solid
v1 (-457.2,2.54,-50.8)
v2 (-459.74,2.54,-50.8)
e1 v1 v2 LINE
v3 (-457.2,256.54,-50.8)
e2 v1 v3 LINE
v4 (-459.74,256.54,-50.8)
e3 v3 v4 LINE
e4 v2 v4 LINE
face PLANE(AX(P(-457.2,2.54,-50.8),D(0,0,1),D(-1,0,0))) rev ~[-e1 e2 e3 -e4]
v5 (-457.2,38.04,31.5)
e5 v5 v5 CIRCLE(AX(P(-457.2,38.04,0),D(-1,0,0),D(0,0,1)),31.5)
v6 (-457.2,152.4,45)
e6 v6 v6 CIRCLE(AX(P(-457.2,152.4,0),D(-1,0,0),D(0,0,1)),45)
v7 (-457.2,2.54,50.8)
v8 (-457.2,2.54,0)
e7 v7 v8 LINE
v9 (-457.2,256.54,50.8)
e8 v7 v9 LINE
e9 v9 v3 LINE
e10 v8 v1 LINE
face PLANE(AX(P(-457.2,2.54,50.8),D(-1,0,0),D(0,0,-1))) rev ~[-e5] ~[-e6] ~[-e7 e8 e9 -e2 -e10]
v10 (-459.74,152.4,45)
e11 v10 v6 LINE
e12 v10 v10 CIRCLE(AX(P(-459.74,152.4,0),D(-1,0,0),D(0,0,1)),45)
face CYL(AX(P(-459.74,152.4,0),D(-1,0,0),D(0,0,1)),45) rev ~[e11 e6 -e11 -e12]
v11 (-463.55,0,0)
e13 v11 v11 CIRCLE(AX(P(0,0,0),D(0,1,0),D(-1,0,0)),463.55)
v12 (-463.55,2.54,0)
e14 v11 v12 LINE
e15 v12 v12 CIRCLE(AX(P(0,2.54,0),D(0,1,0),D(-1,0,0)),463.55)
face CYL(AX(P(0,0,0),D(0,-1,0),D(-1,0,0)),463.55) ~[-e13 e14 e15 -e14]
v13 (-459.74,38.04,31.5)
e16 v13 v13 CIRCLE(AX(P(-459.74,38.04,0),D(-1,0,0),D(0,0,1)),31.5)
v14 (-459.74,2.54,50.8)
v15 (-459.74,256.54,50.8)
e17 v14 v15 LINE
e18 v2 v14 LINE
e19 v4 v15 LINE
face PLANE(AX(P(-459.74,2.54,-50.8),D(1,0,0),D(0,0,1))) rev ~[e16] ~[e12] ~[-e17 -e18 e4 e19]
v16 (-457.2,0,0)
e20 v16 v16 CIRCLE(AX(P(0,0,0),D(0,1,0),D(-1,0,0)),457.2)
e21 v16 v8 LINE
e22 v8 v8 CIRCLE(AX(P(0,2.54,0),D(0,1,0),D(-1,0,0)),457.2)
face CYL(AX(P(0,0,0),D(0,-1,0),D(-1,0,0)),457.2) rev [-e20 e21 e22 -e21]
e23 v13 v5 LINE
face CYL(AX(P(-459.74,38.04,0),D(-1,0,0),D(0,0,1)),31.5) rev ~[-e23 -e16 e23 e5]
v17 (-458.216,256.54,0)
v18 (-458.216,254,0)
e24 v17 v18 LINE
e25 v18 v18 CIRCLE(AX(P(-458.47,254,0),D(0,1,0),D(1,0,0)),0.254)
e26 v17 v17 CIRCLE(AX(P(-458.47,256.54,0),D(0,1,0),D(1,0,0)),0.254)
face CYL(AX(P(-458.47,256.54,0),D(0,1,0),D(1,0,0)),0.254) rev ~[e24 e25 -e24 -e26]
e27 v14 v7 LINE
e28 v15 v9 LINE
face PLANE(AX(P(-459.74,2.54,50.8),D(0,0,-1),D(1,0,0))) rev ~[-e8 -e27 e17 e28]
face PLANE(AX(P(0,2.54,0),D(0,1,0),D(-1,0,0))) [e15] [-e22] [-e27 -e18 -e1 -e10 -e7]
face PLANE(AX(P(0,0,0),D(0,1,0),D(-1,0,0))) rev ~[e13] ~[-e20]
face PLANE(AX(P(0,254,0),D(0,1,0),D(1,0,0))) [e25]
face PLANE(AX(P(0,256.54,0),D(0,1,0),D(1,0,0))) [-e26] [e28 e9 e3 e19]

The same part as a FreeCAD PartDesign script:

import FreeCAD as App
import Part
import Sketcher
from FreeCAD import Vector
Q = App.Units.Quantity


def add_polygon(sketch, points):
    """Adds a closed chain of lines whose ends are joined by coincident constraints."""
    first, n = sketch.GeometryCount, len(points)
    for a, b in zip(points, points[1:] + points[:1]):
        sketch.addGeometry(Part.LineSegment(App.Vector(*a, 0), App.Vector(*b, 0)), False)
    for i in range(n):
        sketch.addConstraint(Sketcher.Constraint("Coincident", first + i, 2, first + (i + 1) % n, 1))

doc = App.newDocument("Part")
body = doc.addObject("PartDesign::Body", "Body")

# Sketch on XZ plane
sketch1 = body.newObject("Sketcher::SketchObject", "Sketch")
sketch1.AttachmentSupport = (doc.getObject("XZ_Plane"), [""])
sketch1.MapMode = "FlatFace"
sketch1.addGeometry([
    Part.Circle(Vector(0, 0, 0), Vector(0, 0, 1), 463.55),
    Part.Circle(Vector(0, 0, 0), Vector(0, 0, 1), 457.2),
], False)
sketch1.addConstraint([
    Sketcher.Constraint("Coincident", 0, 3, -1, 1),
    Sketcher.Constraint("Coincident", 1, 3, -1, 1),
    Sketcher.Constraint("Diameter", 1, Q("36 in")),
    Sketcher.Constraint("Diameter", 0, Q("36.5 in")),
])
pad1 = body.newObject("PartDesign::Pad", "Pad")
pad1.Profile = sketch1
pad1.Length = Q("0.1 in")
pad1.Reversed = True

# Sketch on XZ plane
sketch2 = body.newObject("Sketcher::SketchObject", "Sketch001")
sketch2.AttachmentSupport = (doc.getObject("XZ_Plane"), [""])
sketch2.MapMode = "FlatFace"
sketch2.AttachmentOffset = App.Placement(Vector(0, 0, -0.1 * 25.4), App.Rotation())
add_polygon(sketch2, [(-459.74, -50.8), (-459.74, 50.8), (-457.2, 50.8), (-457.2, -50.8)])  # lines 0-3
sketch2.addConstraint([
    Sketcher.Constraint("Vertical", 0),
    Sketcher.Constraint("Horizontal", 1),
    Sketcher.Constraint("Vertical", 2),
    Sketcher.Constraint("Horizontal", 3),
    Sketcher.Constraint("DistanceY", 0, 1, 0, 2, Q("4 in")),
    Sketcher.Constraint("DistanceX", 1, 1, 1, 2, Q("0.1 in")),
    Sketcher.Constraint("DistanceY", -1, 1, 0, 2, Q("2 in")),
    Sketcher.Constraint("DistanceX", 1, 2, -1, 1, Q("18 in")),
])
pad2 = body.newObject("PartDesign::Pad", "Pad001")
pad2.Profile = sketch2
pad2.Length = Q("10 in")
pad2.Reversed = True

# Sketch on XZ plane
sketch3 = body.newObject("Sketcher::SketchObject", "Sketch002")
sketch3.AttachmentSupport = (doc.getObject("XZ_Plane"), [""])
sketch3.MapMode = "FlatFace"
sketch3.AttachmentOffset = App.Placement(Vector(0, 0, -10.1 * 25.4), App.Rotation())
sketch3.addGeometry(Part.Circle(Vector(-458.47, 0, 0), Vector(0, 0, 1), 0.254), False)
sketch3.addConstraint([
    Sketcher.Constraint("PointOnObject", 0, 3, -1),
    Sketcher.Constraint("Diameter", 0, Q("0.02 in")),
    Sketcher.Constraint("DistanceX", 0, 3, -1, 1, Q("18.05 in")),
])
pocket1 = body.newObject("PartDesign::Pocket", "Pocket")
pocket1.Profile = sketch3
pocket1.Length = Q("0.1 in")
pocket1.Reversed = True

# Sketch on YZ plane
sketch4 = body.newObject("Sketcher::SketchObject", "Sketch003")
sketch4.AttachmentSupport = (doc.getObject("YZ_Plane"), [""])
sketch4.MapMode = "FlatFace"
sketch4.AttachmentOffset = App.Placement(Vector(0, 0, -18.1 * 25.4), App.Rotation())
sketch4.addGeometry([
    Part.Circle(Vector(152.4, 0, 0), Vector(0, 0, 1), 45),
    Part.Circle(Vector(38.04, 0, 0), Vector(0, 0, 1), 31.5),
], False)
sketch4.addConstraint([
    Sketcher.Constraint("PointOnObject", 0, 3, -1),
    Sketcher.Constraint("PointOnObject", 1, 3, -1),
    Sketcher.Constraint("Diameter", 0, Q("3.5433 in")),
    Sketcher.Constraint("Diameter", 1, 63.0),
    Sketcher.Constraint("DistanceX", -1, 1, 0, 3, Q("6 in")),
    Sketcher.Constraint("DistanceX", -1, 1, 1, 3, 38.04),
])
pocket2 = body.newObject("PartDesign::Pocket", "Pocket001")
pocket2.Profile = sketch4
pocket2.Type = "ThroughAll"
pocket2.Reversed = True

doc.recompute()
